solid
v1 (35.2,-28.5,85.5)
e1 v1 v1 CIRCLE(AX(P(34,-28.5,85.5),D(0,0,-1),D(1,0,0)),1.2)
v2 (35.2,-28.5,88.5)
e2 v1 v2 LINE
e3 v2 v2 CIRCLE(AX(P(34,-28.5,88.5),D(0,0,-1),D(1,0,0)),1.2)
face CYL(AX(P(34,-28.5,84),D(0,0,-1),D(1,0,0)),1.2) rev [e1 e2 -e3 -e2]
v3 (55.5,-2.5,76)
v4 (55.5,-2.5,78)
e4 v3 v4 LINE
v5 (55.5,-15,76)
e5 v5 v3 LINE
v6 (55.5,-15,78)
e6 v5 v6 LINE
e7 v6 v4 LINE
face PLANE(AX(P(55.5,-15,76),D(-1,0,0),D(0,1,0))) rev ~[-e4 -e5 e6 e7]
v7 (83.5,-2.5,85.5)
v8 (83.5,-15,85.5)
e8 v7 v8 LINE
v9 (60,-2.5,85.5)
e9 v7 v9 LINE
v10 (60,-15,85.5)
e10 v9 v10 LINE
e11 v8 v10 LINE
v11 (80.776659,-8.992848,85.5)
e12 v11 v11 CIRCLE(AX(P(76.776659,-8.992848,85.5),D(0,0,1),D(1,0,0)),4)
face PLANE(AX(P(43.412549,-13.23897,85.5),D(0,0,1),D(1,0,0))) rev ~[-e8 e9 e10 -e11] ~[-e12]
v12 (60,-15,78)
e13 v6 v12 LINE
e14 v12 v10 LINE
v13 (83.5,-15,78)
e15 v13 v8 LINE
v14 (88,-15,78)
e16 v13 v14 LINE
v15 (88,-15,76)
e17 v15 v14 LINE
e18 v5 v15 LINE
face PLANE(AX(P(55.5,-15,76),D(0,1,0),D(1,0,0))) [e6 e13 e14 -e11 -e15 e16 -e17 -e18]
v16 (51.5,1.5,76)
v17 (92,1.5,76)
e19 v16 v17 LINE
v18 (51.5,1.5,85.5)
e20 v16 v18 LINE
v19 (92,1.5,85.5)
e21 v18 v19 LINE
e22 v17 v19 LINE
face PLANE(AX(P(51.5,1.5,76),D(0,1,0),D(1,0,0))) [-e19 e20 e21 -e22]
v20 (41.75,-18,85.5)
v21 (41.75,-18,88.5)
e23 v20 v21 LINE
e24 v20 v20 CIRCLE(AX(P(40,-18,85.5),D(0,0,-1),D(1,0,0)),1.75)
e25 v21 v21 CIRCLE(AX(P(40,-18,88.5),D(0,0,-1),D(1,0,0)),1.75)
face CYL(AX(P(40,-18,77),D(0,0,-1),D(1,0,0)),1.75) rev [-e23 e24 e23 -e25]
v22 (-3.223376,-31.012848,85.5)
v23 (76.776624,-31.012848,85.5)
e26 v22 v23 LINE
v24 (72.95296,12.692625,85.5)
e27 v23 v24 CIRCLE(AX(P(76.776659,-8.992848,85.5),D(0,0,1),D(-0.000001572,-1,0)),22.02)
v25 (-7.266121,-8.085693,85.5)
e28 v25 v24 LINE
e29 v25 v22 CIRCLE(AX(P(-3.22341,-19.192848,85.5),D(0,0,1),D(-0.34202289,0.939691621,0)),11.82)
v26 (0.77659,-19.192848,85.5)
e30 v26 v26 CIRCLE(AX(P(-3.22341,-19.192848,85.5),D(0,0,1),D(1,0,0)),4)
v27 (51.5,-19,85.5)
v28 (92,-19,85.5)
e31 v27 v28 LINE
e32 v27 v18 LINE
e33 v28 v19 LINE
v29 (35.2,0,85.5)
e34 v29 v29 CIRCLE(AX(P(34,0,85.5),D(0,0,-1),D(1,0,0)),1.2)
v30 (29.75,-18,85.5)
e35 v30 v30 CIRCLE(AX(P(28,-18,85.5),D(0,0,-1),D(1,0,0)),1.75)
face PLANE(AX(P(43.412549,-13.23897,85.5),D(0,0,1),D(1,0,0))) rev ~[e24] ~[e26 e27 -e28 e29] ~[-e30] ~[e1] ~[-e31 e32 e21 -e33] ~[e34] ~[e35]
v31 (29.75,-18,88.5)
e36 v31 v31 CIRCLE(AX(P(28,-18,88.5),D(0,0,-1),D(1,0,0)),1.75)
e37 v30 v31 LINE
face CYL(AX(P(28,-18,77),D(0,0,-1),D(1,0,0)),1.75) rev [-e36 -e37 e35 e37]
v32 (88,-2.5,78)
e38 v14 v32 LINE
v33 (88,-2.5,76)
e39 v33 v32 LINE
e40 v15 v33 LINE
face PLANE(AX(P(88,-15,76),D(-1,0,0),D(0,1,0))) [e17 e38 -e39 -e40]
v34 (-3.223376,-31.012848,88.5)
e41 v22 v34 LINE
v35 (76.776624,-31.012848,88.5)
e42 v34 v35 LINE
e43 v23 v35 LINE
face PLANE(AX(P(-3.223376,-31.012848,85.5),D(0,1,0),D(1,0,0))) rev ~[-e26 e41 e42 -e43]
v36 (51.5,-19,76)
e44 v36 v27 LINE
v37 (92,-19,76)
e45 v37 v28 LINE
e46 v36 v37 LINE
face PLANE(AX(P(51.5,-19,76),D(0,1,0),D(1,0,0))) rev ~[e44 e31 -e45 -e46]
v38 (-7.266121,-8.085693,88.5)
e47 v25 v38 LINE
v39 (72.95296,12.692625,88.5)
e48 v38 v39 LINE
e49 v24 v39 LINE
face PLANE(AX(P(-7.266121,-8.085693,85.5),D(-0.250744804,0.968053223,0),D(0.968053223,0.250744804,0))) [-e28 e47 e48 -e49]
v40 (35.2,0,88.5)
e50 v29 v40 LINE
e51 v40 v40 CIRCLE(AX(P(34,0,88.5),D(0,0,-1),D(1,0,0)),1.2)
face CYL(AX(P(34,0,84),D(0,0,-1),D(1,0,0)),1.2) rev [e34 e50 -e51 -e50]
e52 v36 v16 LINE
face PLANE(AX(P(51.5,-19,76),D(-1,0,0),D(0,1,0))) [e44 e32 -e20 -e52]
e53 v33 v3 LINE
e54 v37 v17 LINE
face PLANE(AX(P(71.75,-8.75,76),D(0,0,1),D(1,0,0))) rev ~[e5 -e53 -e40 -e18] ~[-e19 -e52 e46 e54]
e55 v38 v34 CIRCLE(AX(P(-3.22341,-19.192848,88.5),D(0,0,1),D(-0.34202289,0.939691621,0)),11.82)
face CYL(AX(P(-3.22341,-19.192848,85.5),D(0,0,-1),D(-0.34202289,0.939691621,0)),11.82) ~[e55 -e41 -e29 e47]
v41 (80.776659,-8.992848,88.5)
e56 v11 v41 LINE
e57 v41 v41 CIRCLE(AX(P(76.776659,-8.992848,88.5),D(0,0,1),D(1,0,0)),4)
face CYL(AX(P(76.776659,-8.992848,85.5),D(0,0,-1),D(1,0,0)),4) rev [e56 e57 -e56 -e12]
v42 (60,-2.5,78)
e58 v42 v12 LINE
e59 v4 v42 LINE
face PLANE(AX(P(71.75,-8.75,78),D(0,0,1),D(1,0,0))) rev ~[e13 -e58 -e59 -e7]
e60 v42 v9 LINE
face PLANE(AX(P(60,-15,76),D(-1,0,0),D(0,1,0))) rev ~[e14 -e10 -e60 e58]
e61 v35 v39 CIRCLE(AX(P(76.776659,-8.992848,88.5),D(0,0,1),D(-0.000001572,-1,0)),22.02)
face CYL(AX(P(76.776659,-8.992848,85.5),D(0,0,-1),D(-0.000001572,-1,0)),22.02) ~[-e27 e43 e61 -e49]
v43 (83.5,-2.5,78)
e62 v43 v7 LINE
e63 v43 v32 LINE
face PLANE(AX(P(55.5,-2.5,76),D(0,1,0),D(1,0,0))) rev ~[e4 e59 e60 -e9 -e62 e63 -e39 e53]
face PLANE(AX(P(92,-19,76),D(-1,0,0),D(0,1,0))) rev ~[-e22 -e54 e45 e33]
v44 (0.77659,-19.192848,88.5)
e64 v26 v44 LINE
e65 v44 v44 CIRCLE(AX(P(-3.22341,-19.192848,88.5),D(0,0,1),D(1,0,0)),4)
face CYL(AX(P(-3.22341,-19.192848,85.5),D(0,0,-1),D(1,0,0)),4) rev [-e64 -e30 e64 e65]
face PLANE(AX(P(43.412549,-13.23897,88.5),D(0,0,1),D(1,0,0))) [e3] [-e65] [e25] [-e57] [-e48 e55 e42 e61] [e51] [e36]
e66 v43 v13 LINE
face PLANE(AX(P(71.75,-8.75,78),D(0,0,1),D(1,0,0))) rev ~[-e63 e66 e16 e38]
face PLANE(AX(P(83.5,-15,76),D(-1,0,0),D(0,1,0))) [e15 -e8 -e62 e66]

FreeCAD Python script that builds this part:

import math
import FreeCAD as App
import Part
import Sketcher
Q = App.Units.Quantity


def add_polygon(sketch, points):
    """Adds a closed chain of lines whose ends are joined by coincident constraints."""
    first, n = sketch.GeometryCount, len(points)
    for a, b in zip(points, points[1:] + points[:1]):
        sketch.addGeometry(Part.LineSegment(App.Vector(*a, 0), App.Vector(*b, 0)), False)
    for i in range(n):
        sketch.addConstraint(Sketcher.Constraint("Coincident", first + i, 2, first + (i + 1) % n, 1))

doc = App.newDocument("Part")
body = doc.addObject("PartDesign::Body", "Body")

# Sketch on XY plane
sketch1 = body.newObject("Sketcher::SketchObject", "Sketch")
sketch1.AttachmentSupport = (doc.getObject("XY_Plane"), [""])
sketch1.MapMode = "FlatFace"
sketch1.AttachmentOffset = App.Placement(App.Vector(0, 0, 77), App.Rotation())
sketch1.addGeometry(Part.Circle(App.Vector(40, -18, 0), App.Vector(0, 0, 1), 1.8), False)
sketch1.addConstraint(Sketcher.Constraint("Diameter", 0, Q("3.5 mm")))
sketch1.addConstraint(Sketcher.Constraint("DistanceX", -1, 1, 0, 3, Q("40 mm")))
sketch1.addConstraint(Sketcher.Constraint("DistanceY", 0, 3, -1, 1, Q("18 mm")))
pad1 = body.newObject("PartDesign::Pad", "Pad")
pad1.Profile = sketch1
pad1.Length = 20
body2 = doc.addObject("PartDesign::Body", "Body001")

# Sketch on XY plane
sketch2 = body2.newObject("Sketcher::SketchObject", "Sketch001")
sketch2.AttachmentSupport = (doc.getObject("XY_Plane001"), [""])
sketch2.MapMode = "FlatFace"
sketch2.AttachmentOffset = App.Placement(App.Vector(0, 0, 77), App.Rotation())
sketch2.addGeometry(Part.Circle(App.Vector(28, -18, 0), App.Vector(0, 0, 1), 1.8), False)
sketch2.addConstraint(Sketcher.Constraint("Diameter", 0, Q("3.5 mm")))
sketch2.addConstraint(Sketcher.Constraint("DistanceX", -1, 1, 0, 3, Q("28 mm")))
sketch2.addConstraint(Sketcher.Constraint("DistanceY", 0, 3, -1, 1, Q("18 mm")))
pad2 = body2.newObject("PartDesign::Pad", "Pad001")
pad2.Profile = sketch2
pad2.Length = 20
body3 = doc.addObject("PartDesign::Body", "Body002")

# Sketch on XY plane
sketch3 = body3.newObject("Sketcher::SketchObject", "Sketch002")
sketch3.AttachmentSupport = (doc.getObject("XY_Plane002"), [""])
sketch3.MapMode = "FlatFace"
sketch3.AttachmentOffset = App.Placement(App.Vector(0, 0, -5), App.Rotation())
sketch3.addGeometry(Part.Circle(App.Vector(55, 19, 0), App.Vector(0, 0, 1), 1.2), False)
sketch3.addConstraint(Sketcher.Constraint("Diameter", 0, Q("2.4 mm")))
sketch3.addConstraint(Sketcher.Constraint("DistanceX", -1, 1, 0, 3, Q("55 mm")))
sketch3.addConstraint(Sketcher.Constraint("DistanceY", -1, 1, 0, 3, Q("19 mm")))
pad3 = body3.newObject("PartDesign::Pad", "Pad002")
pad3.Profile = sketch3
pad3.Length = 10
body4 = doc.addObject("PartDesign::Body", "Body003")

# Sketch on XY plane
sketch4 = body4.newObject("Sketcher::SketchObject", "Sketch003")
sketch4.AttachmentSupport = (doc.getObject("XY_Plane003"), [""])
sketch4.MapMode = "FlatFace"
sketch4.AttachmentOffset = App.Placement(App.Vector(0, 0, -5), App.Rotation())
sketch4.addGeometry(Part.Circle(App.Vector(55, -9.5, 0), App.Vector(0, 0, 1), 1.2), False)
sketch4.addConstraint(Sketcher.Constraint("Diameter", 0, Q("2.4 mm")))
sketch4.addConstraint(Sketcher.Constraint("DistanceX", -1, 1, 0, 3, Q("55 mm")))
sketch4.addConstraint(Sketcher.Constraint("DistanceY", 0, 3, -1, 1, Q("9.5 mm")))
pad4 = body4.newObject("PartDesign::Pad", "Pad003")
pad4.Profile = sketch4
pad4.Length = 10
body5 = doc.addObject("PartDesign::Body", "Body004")

# Sketch on XY plane
sketch5 = body5.newObject("Sketcher::SketchObject", "Sketch004")
sketch5.AttachmentSupport = (doc.getObject("XY_Plane004"), [""])
sketch5.MapMode = "FlatFace"
sketch5.AttachmentOffset = App.Placement(App.Vector(0, 0, -3), App.Rotation())
sketch5.addGeometry(Part.ArcOfCircle(Part.Circle(App.Vector(17.77659, -0.192848, 0), App.Vector(0, 0, 1), 11.82), math.radians(110.000167), math.radians(270.000167)), False)
sketch5.addGeometry(Part.LineSegment(App.Vector(17.776624, -12.012848, 0), App.Vector(97.776624, -12.012848, 0)), False)
sketch5.addGeometry(Part.ArcOfCircle(Part.Circle(App.Vector(97.776659, 10.007152, 0), App.Vector(0, 0, 1), 22.02), math.radians(-90.00009), math.radians(99.999909)), False)
sketch5.addGeometry(Part.LineSegment(App.Vector(93.95296, 31.692625, 0), App.Vector(13.733879, 10.914307, 0)), False)
sketch5.addGeometry(Part.Circle(App.Vector(17.77659, -0.192848, 0), App.Vector(0, 0, 1), 4), False)
sketch5.addGeometry(Part.Circle(App.Vector(97.776659, 10.007152, 0), App.Vector(0, 0, 1), 4), False)
sketch5.addConstraint(Sketcher.Constraint("Coincident", 0, 2, 1, 1))
sketch5.addConstraint(Sketcher.Constraint("Coincident", 1, 2, 2, 1))
sketch5.addConstraint(Sketcher.Constraint("Coincident", 2, 2, 3, 1))
sketch5.addConstraint(Sketcher.Constraint("Coincident", 3, 2, 0, 1))
sketch5.addConstraint(Sketcher.Constraint("Horizontal", 1))
sketch5.addConstraint(Sketcher.Constraint("Coincident", 4, 3, 0, 3))
sketch5.addConstraint(Sketcher.Constraint("Coincident", 5, 3, 2, 3))
sketch5.addConstraint(Sketcher.Constraint("Diameter", 4, Q("8 mm")))
sketch5.addConstraint(Sketcher.Constraint("Diameter", 5, Q("8 mm")))
sketch5.addConstraint(Sketcher.Constraint("DistanceX", 1, 1, 1, 2, Q("80 mm")))
sketch5.addConstraint(Sketcher.Constraint("Radius", 0, Q("11.82 mm")))
sketch5.addConstraint(Sketcher.Constraint("Radius", 2, Q("22.02 mm")))
sketch5.addConstraint(Sketcher.Constraint("DistanceX", 2, 2, 2, 3, Q("3.823699 mm")))
sketch5.addConstraint(Sketcher.Constraint("DistanceX", -1, 1, 0, 3, Q("17.77659 mm")))
sketch5.addConstraint(Sketcher.Constraint("DistanceX", -1, 1, 2, 3, Q("97.776659 mm")))
sketch5.addConstraint(Sketcher.Constraint("DistanceX", -1, 1, 3, 2, Q("13.733879 mm")))
sketch5.addConstraint(Sketcher.Constraint("DistanceY", 0, 3, -1, 1, Q("0.192848 mm")))
sketch5.addConstraint(Sketcher.Constraint("DistanceX", -1, 1, 0, 2, Q("17.776624 mm")))
pad5 = body5.newObject("PartDesign::Pad", "Pad004")
pad5.Profile = sketch5
pad5.Length = 3
body6 = doc.addObject("PartDesign::Body", "Body005")

# Sketch on XY plane
sketch6 = body6.newObject("Sketcher::SketchObject", "Sketch005")
sketch6.AttachmentSupport = (doc.getObject("XY_Plane005"), [""])
sketch6.MapMode = "FlatFace"
add_polygon(sketch6, [(8, 16), (8, 4), (32, 4), (32, 16)])  # lines 0-3
sketch6.addConstraint(Sketcher.Constraint("Vertical", 0))
sketch6.addConstraint(Sketcher.Constraint("Horizontal", 1))
sketch6.addConstraint(Sketcher.Constraint("Vertical", 2))
sketch6.addConstraint(Sketcher.Constraint("Horizontal", 3))
sketch6.addConstraint(Sketcher.Constraint("DistanceX", 1, 1, 1, 2, Q("23.5 mm")))
sketch6.addConstraint(Sketcher.Constraint("DistanceY", 0, 2, 0, 1, Q("12.5 mm")))
sketch6.addConstraint(Sketcher.Constraint("DistanceY", -1, 1, 0, 2, Q("4 mm")))
sketch6.addConstraint(Sketcher.Constraint("DistanceX", -1, 1, 1, 2, Q("32 mm")))
pad6 = body6.newObject("PartDesign::Pad", "Pad005")
pad6.Profile = sketch6
pad6.Length = 10
body7 = doc.addObject("PartDesign::Body", "Body006")

# Sketch on XY plane
sketch7 = body7.newObject("Sketcher::SketchObject", "Sketch006")
sketch7.AttachmentSupport = (doc.getObject("XY_Plane006"), [""])
sketch7.MapMode = "FlatFace"
add_polygon(sketch7, [(4, 16), (4, 4), (36, 4), (36, 16)])  # lines 0-3
sketch7.addConstraint(Sketcher.Constraint("Vertical", 0))
sketch7.addConstraint(Sketcher.Constraint("Horizontal", 1))
sketch7.addConstraint(Sketcher.Constraint("Vertical", 2))
sketch7.addConstraint(Sketcher.Constraint("Horizontal", 3))
sketch7.addConstraint(Sketcher.Constraint("DistanceX", 1, 1, 1, 2, Q("32.5 mm")))
sketch7.addConstraint(Sketcher.Constraint("DistanceY", 0, 2, 0, 1, Q("12.5 mm")))
sketch7.addConstraint(Sketcher.Constraint("DistanceX", -1, 1, 0, 2, Q("4 mm")))
sketch7.addConstraint(Sketcher.Constraint("DistanceY", -1, 1, 0, 2, Q("4 mm")))
pad7 = body7.newObject("PartDesign::Pad", "Pad006")
pad7.Profile = sketch7
pad7.Length = 2
body8 = doc.addObject("PartDesign::Body", "Body007")

# Sketch on XY plane
sketch8 = body8.newObject("Sketcher::SketchObject", "Sketch007")
sketch8.AttachmentSupport = (doc.getObject("XY_Plane007"), [""])
sketch8.MapMode = "FlatFace"
add_polygon(sketch8, [(0, 20), (0, 0), (40, 0), (40, 20)])  # lines 0-3
sketch8.addConstraint(Sketcher.Constraint("Vertical", 0))
sketch8.addConstraint(Sketcher.Constraint("Horizontal", 1))
sketch8.addConstraint(Sketcher.Constraint("Vertical", 2))
sketch8.addConstraint(Sketcher.Constraint("Horizontal", 3))
sketch8.addConstraint(Sketcher.Constraint("Coincident", 0, 2, -1, 1))
sketch8.addConstraint(Sketcher.Constraint("DistanceX", 1, 1, 1, 2, Q("40.5 mm")))
sketch8.addConstraint(Sketcher.Constraint("DistanceY", 0, 2, 0, 1, Q("20.5 mm")))
pad8 = body8.newObject("PartDesign::Pad", "Pad007")
pad8.Profile = sketch8
pad8.Length = 9.5
doc.recompute()

boolean = body8.newObject("PartDesign::Boolean", "Boolean")
boolean.Type = "Cut"
boolean.addObjects([body7])
doc.recompute()

boolean2 = body8.newObject("PartDesign::Boolean", "Boolean001")
boolean2.Type = "Cut"
boolean2.addObjects([body6])
body9 = doc.addObject("PartDesign::Body", "Body008")
doc.recompute()

body8.Placement = App.Placement(App.Vector(72.5, 0, -12.5), App.Rotation(App.Vector(0, 0, 1), 0))
boolean3 = body9.newObject("PartDesign::Boolean", "Boolean002")
boolean3.Type = "Fuse"
boolean3.addObjects([body8])
doc.recompute()

boolean4 = body9.newObject("PartDesign::Boolean", "Boolean003")
boolean4.Type = "Fuse"
boolean4.addObjects([body5])
body10 = doc.addObject("PartDesign::Body", "Body009")
doc.recompute()

body9.Placement = App.Placement(App.Vector(0, 0, -0.5), App.Rotation(App.Vector(0, 0, 1), 0))
boolean5 = body10.newObject("PartDesign::Boolean", "Boolean004")
boolean5.Type = "Fuse"
boolean5.addObjects([body9])
doc.recompute()

boolean6 = body10.newObject("PartDesign::Boolean", "Boolean005")
boolean6.Type = "Cut"
boolean6.addObjects([body4])
doc.recompute()

boolean7 = body10.newObject("PartDesign::Boolean", "Boolean006")
boolean7.Type = "Cut"
boolean7.addObjects([body3])
body11 = doc.addObject("PartDesign::Body", "Body010")
doc.recompute()

body10.Placement = App.Placement(App.Vector(-21, -19, 89), App.Rotation(App.Vector(0, 0, 1), 0))
boolean8 = body11.newObject("PartDesign::Boolean", "Boolean007")
boolean8.Type = "Fuse"
boolean8.addObjects([body10])
doc.recompute()

boolean9 = body11.newObject("PartDesign::Boolean", "Boolean008")
boolean9.Type = "Cut"
boolean9.addObjects([body2])
doc.recompute()

boolean10 = body11.newObject("PartDesign::Boolean", "Boolean009")
boolean10.Type = "Cut"
boolean10.addObjects([body])

doc.recompute()
